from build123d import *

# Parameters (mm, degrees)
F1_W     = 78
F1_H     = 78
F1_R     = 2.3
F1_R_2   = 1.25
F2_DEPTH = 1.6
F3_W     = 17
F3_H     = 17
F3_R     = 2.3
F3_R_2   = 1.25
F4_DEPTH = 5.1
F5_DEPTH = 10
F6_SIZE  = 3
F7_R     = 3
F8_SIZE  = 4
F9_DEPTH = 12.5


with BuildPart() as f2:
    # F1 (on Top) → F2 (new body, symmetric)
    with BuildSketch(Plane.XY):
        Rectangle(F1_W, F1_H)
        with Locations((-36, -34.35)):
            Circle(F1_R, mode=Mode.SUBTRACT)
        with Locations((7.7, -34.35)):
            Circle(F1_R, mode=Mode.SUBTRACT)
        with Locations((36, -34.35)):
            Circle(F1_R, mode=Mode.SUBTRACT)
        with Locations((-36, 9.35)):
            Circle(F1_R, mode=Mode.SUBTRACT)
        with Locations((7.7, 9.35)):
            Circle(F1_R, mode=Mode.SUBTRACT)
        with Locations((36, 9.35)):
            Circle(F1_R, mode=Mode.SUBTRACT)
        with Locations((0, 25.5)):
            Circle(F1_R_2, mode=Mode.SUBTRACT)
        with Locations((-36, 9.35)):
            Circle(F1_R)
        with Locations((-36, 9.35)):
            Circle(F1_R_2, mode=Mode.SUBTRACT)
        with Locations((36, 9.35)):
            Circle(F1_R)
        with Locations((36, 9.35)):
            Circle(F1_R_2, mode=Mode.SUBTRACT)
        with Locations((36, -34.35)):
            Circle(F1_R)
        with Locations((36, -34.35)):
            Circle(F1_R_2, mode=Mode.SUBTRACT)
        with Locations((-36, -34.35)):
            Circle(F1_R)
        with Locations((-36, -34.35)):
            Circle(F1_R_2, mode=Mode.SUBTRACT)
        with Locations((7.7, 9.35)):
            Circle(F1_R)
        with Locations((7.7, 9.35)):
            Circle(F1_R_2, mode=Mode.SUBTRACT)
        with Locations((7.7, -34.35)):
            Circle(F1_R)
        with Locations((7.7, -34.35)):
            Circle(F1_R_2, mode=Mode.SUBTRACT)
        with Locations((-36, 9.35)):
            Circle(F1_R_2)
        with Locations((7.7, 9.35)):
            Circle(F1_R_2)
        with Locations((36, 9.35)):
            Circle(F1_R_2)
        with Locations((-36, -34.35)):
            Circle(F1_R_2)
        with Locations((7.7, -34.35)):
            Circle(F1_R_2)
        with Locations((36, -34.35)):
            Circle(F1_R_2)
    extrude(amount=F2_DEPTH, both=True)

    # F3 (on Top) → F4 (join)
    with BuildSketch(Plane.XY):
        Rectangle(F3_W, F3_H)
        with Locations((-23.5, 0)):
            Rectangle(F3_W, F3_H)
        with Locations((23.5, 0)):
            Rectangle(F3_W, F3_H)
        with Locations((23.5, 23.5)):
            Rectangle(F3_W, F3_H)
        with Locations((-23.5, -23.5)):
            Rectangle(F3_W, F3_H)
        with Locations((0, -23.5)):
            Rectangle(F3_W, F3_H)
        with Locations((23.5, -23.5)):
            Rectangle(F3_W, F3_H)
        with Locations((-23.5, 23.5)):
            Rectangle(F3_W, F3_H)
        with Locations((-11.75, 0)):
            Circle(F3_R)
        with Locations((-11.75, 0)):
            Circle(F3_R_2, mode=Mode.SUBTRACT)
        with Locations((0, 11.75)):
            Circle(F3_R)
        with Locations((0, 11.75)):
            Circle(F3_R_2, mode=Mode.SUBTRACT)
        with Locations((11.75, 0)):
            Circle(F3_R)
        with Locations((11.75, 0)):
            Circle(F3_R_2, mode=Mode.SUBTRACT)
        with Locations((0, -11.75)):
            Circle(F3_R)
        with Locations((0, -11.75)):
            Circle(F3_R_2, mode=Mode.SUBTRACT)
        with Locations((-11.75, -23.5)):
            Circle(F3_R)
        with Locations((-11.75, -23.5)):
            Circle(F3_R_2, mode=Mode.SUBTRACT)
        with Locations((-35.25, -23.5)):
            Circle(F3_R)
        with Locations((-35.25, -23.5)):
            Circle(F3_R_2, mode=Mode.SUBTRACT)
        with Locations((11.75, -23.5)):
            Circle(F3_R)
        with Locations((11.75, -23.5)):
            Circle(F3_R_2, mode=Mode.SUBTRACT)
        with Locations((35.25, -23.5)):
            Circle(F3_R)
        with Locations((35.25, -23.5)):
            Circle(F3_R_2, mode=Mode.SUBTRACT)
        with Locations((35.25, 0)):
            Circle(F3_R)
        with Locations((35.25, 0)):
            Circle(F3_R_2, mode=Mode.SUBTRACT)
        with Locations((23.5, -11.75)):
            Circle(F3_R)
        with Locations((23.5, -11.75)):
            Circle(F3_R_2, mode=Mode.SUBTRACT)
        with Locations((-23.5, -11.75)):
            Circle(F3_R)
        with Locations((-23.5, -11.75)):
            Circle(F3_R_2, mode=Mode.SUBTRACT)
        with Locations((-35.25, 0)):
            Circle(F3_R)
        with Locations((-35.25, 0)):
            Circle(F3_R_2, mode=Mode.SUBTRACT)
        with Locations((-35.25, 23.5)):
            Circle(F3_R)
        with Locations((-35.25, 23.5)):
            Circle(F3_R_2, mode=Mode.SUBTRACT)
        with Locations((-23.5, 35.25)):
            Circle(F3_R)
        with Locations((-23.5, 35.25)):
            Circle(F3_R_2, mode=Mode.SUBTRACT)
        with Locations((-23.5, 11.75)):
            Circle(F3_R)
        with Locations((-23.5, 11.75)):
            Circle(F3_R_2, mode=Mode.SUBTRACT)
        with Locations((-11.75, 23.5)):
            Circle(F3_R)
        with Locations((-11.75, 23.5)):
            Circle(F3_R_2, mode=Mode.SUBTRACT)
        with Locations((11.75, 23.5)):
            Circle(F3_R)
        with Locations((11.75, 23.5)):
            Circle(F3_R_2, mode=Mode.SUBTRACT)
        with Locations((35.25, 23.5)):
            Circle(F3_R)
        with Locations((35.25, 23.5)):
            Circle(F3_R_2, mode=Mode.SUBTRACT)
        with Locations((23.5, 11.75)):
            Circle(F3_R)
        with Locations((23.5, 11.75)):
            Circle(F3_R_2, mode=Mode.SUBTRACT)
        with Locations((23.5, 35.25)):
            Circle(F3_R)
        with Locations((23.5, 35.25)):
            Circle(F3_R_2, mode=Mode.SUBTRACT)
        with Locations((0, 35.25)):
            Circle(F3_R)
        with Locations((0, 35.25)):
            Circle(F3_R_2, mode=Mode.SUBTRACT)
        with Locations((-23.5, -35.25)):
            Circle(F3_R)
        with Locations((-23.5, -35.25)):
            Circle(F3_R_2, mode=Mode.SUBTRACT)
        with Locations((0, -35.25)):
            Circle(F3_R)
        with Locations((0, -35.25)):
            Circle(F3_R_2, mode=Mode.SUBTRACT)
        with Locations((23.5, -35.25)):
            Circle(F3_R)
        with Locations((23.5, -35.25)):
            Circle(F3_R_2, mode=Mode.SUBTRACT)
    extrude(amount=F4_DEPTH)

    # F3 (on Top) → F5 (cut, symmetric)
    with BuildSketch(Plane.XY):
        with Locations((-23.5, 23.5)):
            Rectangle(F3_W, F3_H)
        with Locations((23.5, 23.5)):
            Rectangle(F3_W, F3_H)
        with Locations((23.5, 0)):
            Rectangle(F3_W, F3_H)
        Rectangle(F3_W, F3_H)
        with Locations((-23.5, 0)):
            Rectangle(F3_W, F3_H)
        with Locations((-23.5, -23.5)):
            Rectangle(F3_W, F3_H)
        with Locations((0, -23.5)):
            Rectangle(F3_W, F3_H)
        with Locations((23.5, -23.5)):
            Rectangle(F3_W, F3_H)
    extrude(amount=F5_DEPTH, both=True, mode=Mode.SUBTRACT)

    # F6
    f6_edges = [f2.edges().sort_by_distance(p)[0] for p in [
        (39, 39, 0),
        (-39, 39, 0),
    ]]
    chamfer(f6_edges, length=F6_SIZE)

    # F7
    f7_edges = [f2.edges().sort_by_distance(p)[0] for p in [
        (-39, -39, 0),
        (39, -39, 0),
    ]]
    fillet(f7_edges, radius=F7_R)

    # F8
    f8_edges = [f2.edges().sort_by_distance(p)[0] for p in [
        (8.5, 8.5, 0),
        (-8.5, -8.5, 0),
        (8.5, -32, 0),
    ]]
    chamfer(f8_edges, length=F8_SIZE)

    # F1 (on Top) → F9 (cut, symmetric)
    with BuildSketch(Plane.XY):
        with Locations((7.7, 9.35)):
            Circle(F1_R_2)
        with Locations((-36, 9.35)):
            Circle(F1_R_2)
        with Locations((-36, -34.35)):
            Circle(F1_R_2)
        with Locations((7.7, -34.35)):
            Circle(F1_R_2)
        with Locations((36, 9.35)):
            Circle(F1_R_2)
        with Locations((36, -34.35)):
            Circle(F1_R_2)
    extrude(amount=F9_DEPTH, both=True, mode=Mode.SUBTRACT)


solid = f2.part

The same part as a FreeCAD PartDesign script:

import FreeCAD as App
import Part
import Sketcher
from FreeCAD import Vector
Q = App.Units.Quantity


def edges_at(feature, points):
    """Names of the edges that pass closest to the given points."""
    edges = feature.Shape.Edges
    near = lambda p: min(range(len(edges)), key=lambda i: edges[i].distToShape(Part.Vertex(*p))[0])
    return sorted({f"Edge{near(p) + 1}" for p in points})


def add_polygon(sketch, points):
    """Adds a closed chain of lines whose ends are joined by coincident constraints."""
    first, n = sketch.GeometryCount, len(points)
    for a, b in zip(points, points[1:] + points[:1]):
        sketch.addGeometry(Part.LineSegment(App.Vector(*a, 0), App.Vector(*b, 0)), False)
    for i in range(n):
        sketch.addConstraint(Sketcher.Constraint("Coincident", first + i, 2, first + (i + 1) % n, 1))

doc = App.newDocument("Part")
body = doc.addObject("PartDesign::Body", "Body")

sketch1 = body.newObject("Sketcher::SketchObject", "Sketch")
sketch1.AttachmentSupport = (doc.getObject("XY_Plane"), [""])
sketch1.MapMode = "FlatFace"
add_polygon(sketch1, [(-39, 39), (-39, -39), (39, -39), (39, 39)])
sketch1.addGeometry(Part.Circle(Vector(0, 25.5, 0), Vector(0, 0, 1), 1.2), False)
sketch1.addConstraint([
    Sketcher.Constraint("Vertical", 0),
    Sketcher.Constraint("Horizontal", 1),
    Sketcher.Constraint("Vertical", 2),
    Sketcher.Constraint("Horizontal", 3),
    Sketcher.Constraint("Symmetric", 0, 2, 2, 2, -1, 1),
    Sketcher.Constraint("PointOnObject", 4, 3, -2),
    Sketcher.Constraint("Equal", 3, 0),
    Sketcher.Constraint("Diameter", 4, Q("2.5 mm")),
    Sketcher.Constraint("DistanceX", 1, 1, 1, 2, Q("78 mm")),
    Sketcher.Constraint("DistanceY", -1, 1, 4, 3, Q("25.5 mm")),
])
pad1 = body.newObject("PartDesign::Pad", "Pad")
pad1.Profile = sketch1
pad1.Length = 3.2
pad1.Midplane = True

sketch2 = body.newObject("Sketcher::SketchObject", "Sketch001")
sketch2.AttachmentSupport = (doc.getObject("XY_Plane"), [""])
sketch2.MapMode = "FlatFace"
add_polygon(sketch2, [(-8.5, 8.5), (-8.5, -8.5), (8.5, -8.5), (8.5, 8.5)])
add_polygon(sketch2, [(-32, 8.5), (-32, -8.5), (-15, -8.5), (-15, 8.5)])
add_polygon(sketch2, [(15, 8.5), (15, -8.5), (32, -8.5), (32, 8.5)])
add_polygon(sketch2, [(15, 32), (15, 15), (32, 15), (32, 32)])
add_polygon(sketch2, [(-32, -15), (-32, -32), (-15, -32), (-15, -15)])
add_polygon(sketch2, [(-8.5, -15), (-8.5, -32), (8.5, -32), (8.5, -15)])
add_polygon(sketch2, [(15, -15), (15, -32), (32, -32), (32, -15)])
add_polygon(sketch2, [(-32, 32), (-32, 15), (-15, 15), (-15, 32)])
sketch2.addGeometry(Part.Circle(Vector(-11.8, 0, 0), Vector(0, 0, 1), 2.3), False)
sketch2.addGeometry(Part.Circle(Vector(-11.8, 0, 0), Vector(0, 0, 1), 1.2), False)
sketch2.addGeometry(Part.Circle(Vector(0, 11.8, 0), Vector(0, 0, 1), 2.3), False)
sketch2.addGeometry(Part.Circle(Vector(0, 11.8, 0), Vector(0, 0, 1), 1.2), False)
sketch2.addGeometry(Part.Circle(Vector(11.8, 0, 0), Vector(0, 0, 1), 2.3), False)
sketch2.addGeometry(Part.Circle(Vector(11.8, 0, 0), Vector(0, 0, 1), 1.2), False)
sketch2.addGeometry(Part.Circle(Vector(0, -11.8, 0), Vector(0, 0, 1), 2.3), False)
sketch2.addGeometry(Part.Circle(Vector(0, -11.8, 0), Vector(0, 0, 1), 1.2), False)
sketch2.addGeometry(Part.Circle(Vector(-11.8, -23.5, 0), Vector(0, 0, 1), 2.3), False)
sketch2.addGeometry(Part.Circle(Vector(-11.8, -23.5, 0), Vector(0, 0, 1), 1.2), False)
sketch2.addGeometry(Part.Circle(Vector(-35.2, -23.5, 0), Vector(0, 0, 1), 2.3), False)
sketch2.addGeometry(Part.Circle(Vector(-35.2, -23.5, 0), Vector(0, 0, 1), 1.2), False)
sketch2.addGeometry(Part.Circle(Vector(11.8, -23.5, 0), Vector(0, 0, 1), 2.3), False)
sketch2.addGeometry(Part.Circle(Vector(11.8, -23.5, 0), Vector(0, 0, 1), 1.2), False)
sketch2.addGeometry(Part.Circle(Vector(35.2, -23.5, 0), Vector(0, 0, 1), 2.3), False)
sketch2.addGeometry(Part.Circle(Vector(35.2, -23.5, 0), Vector(0, 0, 1), 1.2), False)
sketch2.addGeometry(Part.Circle(Vector(35.2, 0, 0), Vector(0, 0, 1), 2.3), False)
sketch2.addGeometry(Part.Circle(Vector(35.2, 0, 0), Vector(0, 0, 1), 1.2), False)
sketch2.addGeometry(Part.Circle(Vector(23.5, -11.8, 0), Vector(0, 0, 1), 2.3), False)
sketch2.addGeometry(Part.Circle(Vector(23.5, -11.8, 0), Vector(0, 0, 1), 1.2), False)
sketch2.addGeometry(Part.Circle(Vector(-23.5, -11.8, 0), Vector(0, 0, 1), 2.3), False)
sketch2.addGeometry(Part.Circle(Vector(-23.5, -11.8, 0), Vector(0, 0, 1), 1.2), False)
sketch2.addGeometry(Part.Circle(Vector(-35.2, 0, 0), Vector(0, 0, 1), 2.3), False)
sketch2.addGeometry(Part.Circle(Vector(-35.2, 0, 0), Vector(0, 0, 1), 1.2), False)
sketch2.addGeometry(Part.Circle(Vector(-35.2, 23.5, 0), Vector(0, 0, 1), 2.3), False)
sketch2.addGeometry(Part.Circle(Vector(-35.2, 23.5, 0), Vector(0, 0, 1), 1.2), False)
sketch2.addGeometry(Part.Circle(Vector(-23.5, 35.2, 0), Vector(0, 0, 1), 2.3), False)
sketch2.addGeometry(Part.Circle(Vector(-23.5, 35.2, 0), Vector(0, 0, 1), 1.2), False)
sketch2.addGeometry(Part.Circle(Vector(-23.5, 11.8, 0), Vector(0, 0, 1), 2.3), False)
sketch2.addGeometry(Part.Circle(Vector(-23.5, 11.8, 0), Vector(0, 0, 1), 1.2), False)
sketch2.addGeometry(Part.Circle(Vector(-11.8, 23.5, 0), Vector(0, 0, 1), 2.3), False)
sketch2.addGeometry(Part.Circle(Vector(-11.8, 23.5, 0), Vector(0, 0, 1), 1.2), False)
sketch2.addGeometry(Part.Circle(Vector(11.8, 23.5, 0), Vector(0, 0, 1), 2.3), False)
sketch2.addGeometry(Part.Circle(Vector(11.8, 23.5, 0), Vector(0, 0, 1), 1.2), False)
sketch2.addGeometry(Part.Circle(Vector(35.2, 23.5, 0), Vector(0, 0, 1), 2.3), False)
sketch2.addGeometry(Part.Circle(Vector(35.2, 23.5, 0), Vector(0, 0, 1), 1.2), False)
sketch2.addGeometry(Part.Circle(Vector(23.5, 11.8, 0), Vector(0, 0, 1), 2.3), False)
sketch2.addGeometry(Part.Circle(Vector(23.5, 11.8, 0), Vector(0, 0, 1), 1.2), False)
sketch2.addGeometry(Part.Circle(Vector(23.5, 35.2, 0), Vector(0, 0, 1), 2.3), False)
sketch2.addGeometry(Part.Circle(Vector(23.5, 35.2, 0), Vector(0, 0, 1), 1.2), False)
sketch2.addGeometry(Part.Circle(Vector(0, 35.2, 0), Vector(0, 0, 1), 2.3), False)
sketch2.addGeometry(Part.Circle(Vector(0, 35.2, 0), Vector(0, 0, 1), 1.2), False)
sketch2.addGeometry(Part.Circle(Vector(-23.5, -35.2, 0), Vector(0, 0, 1), 2.3), False)
sketch2.addGeometry(Part.Circle(Vector(-23.5, -35.2, 0), Vector(0, 0, 1), 1.2), False)
sketch2.addGeometry(Part.Circle(Vector(0, -35.2, 0), Vector(0, 0, 1), 2.3), False)
sketch2.addGeometry(Part.Circle(Vector(0, -35.2, 0), Vector(0, 0, 1), 1.2), False)
sketch2.addGeometry(Part.Circle(Vector(23.5, -35.2, 0), Vector(0, 0, 1), 2.3), False)
sketch2.addGeometry(Part.Circle(Vector(23.5, -35.2, 0), Vector(0, 0, 1), 1.2), False)
sketch2.addConstraint([
    Sketcher.Constraint("Vertical", 0),
    Sketcher.Constraint("Horizontal", 1),
    Sketcher.Constraint("Vertical", 2),
    Sketcher.Constraint("Horizontal", 3),
    Sketcher.Constraint("Vertical", 4),
    Sketcher.Constraint("Horizontal", 5),
    Sketcher.Constraint("Vertical", 6),
    Sketcher.Constraint("Horizontal", 7),
    Sketcher.Constraint("Vertical", 8),
    Sketcher.Constraint("Horizontal", 9),
    Sketcher.Constraint("Vertical", 10),
    Sketcher.Constraint("Horizontal", 11),
    Sketcher.Constraint("Vertical", 12),
    Sketcher.Constraint("Horizontal", 13),
    Sketcher.Constraint("Vertical", 14),
    Sketcher.Constraint("Horizontal", 15),
    Sketcher.Constraint("Vertical", 16),
    Sketcher.Constraint("Horizontal", 17),
    Sketcher.Constraint("Vertical", 18),
    Sketcher.Constraint("Horizontal", 19),
    Sketcher.Constraint("Vertical", 20),
    Sketcher.Constraint("Horizontal", 21),
    Sketcher.Constraint("Vertical", 22),
    Sketcher.Constraint("Horizontal", 23),
    Sketcher.Constraint("Vertical", 24),
    Sketcher.Constraint("Horizontal", 25),
    Sketcher.Constraint("Vertical", 26),
    Sketcher.Constraint("Horizontal", 27),
    Sketcher.Constraint("Vertical", 28),
    Sketcher.Constraint("Horizontal", 29),
    Sketcher.Constraint("Vertical", 30),
    Sketcher.Constraint("Horizontal", 31),
    Sketcher.Constraint("Coincident", 33, 3, 32, 3),
    Sketcher.Constraint("Coincident", 35, 3, 34, 3),
    Sketcher.Constraint("Coincident", 37, 3, 36, 3),
    Sketcher.Constraint("Coincident", 39, 3, 38, 3),
    Sketcher.Constraint("Coincident", 41, 3, 40, 3),
    Sketcher.Constraint("Coincident", 43, 3, 42, 3),
    Sketcher.Constraint("Coincident", 45, 3, 44, 3),
    Sketcher.Constraint("Coincident", 47, 3, 46, 3),
    Sketcher.Constraint("Coincident", 49, 3, 48, 3),
    Sketcher.Constraint("Coincident", 51, 3, 50, 3),
    Sketcher.Constraint("Coincident", 53, 3, 52, 3),
    Sketcher.Constraint("Coincident", 55, 3, 54, 3),
    Sketcher.Constraint("Coincident", 57, 3, 56, 3),
    Sketcher.Constraint("Coincident", 59, 3, 58, 3),
    Sketcher.Constraint("Coincident", 61, 3, 60, 3),
    Sketcher.Constraint("Coincident", 63, 3, 62, 3),
    Sketcher.Constraint("Coincident", 65, 3, 64, 3),
    Sketcher.Constraint("Coincident", 67, 3, 66, 3),
    Sketcher.Constraint("Coincident", 69, 3, 68, 3),
    Sketcher.Constraint("Coincident", 71, 3, 70, 3),
    Sketcher.Constraint("Coincident", 73, 3, 72, 3),
    Sketcher.Constraint("Coincident", 75, 3, 74, 3),
    Sketcher.Constraint("Coincident", 77, 3, 76, 3),
    Sketcher.Constraint("Coincident", 79, 3, 78, 3),
    Sketcher.Constraint("Equal", 32, 34),
    Sketcher.Constraint("Equal", 33, 35),
    Sketcher.Constraint("Equal", 34, 36),
    Sketcher.Constraint("Equal", 35, 37),
    Sketcher.Constraint("Equal", 36, 38),
    Sketcher.Constraint("Equal", 37, 39),
    Sketcher.Constraint("Equal", 38, 40),
    Sketcher.Constraint("Equal", 39, 41),
    Sketcher.Constraint("Equal", 40, 42),
    Sketcher.Constraint("Equal", 41, 43),
    Sketcher.Constraint("Equal", 42, 44),
    Sketcher.Constraint("Equal", 43, 45),
    Sketcher.Constraint("Equal", 44, 46),
    Sketcher.Constraint("Equal", 45, 47),
    Sketcher.Constraint("Equal", 46, 48),
    Sketcher.Constraint("Equal", 47, 49),
    Sketcher.Constraint("Equal", 48, 50),
    Sketcher.Constraint("Equal", 49, 51),
    Sketcher.Constraint("Equal", 50, 52),
    Sketcher.Constraint("Equal", 51, 53),
    Sketcher.Constraint("Equal", 52, 54),
    Sketcher.Constraint("Equal", 53, 55),
    Sketcher.Constraint("Equal", 54, 56),
    Sketcher.Constraint("Equal", 55, 57),
    Sketcher.Constraint("Equal", 56, 58),
    Sketcher.Constraint("Equal", 57, 59),
    Sketcher.Constraint("Equal", 58, 60),
    Sketcher.Constraint("Equal", 59, 61),
    Sketcher.Constraint("Equal", 60, 62),
    Sketcher.Constraint("Equal", 61, 63),
    Sketcher.Constraint("Equal", 62, 64),
    Sketcher.Constraint("Equal", 63, 65),
    Sketcher.Constraint("Equal", 64, 66),
    Sketcher.Constraint("Equal", 65, 67),
    Sketcher.Constraint("Equal", 66, 68),
    Sketcher.Constraint("Equal", 67, 69),
    Sketcher.Constraint("Equal", 68, 70),
    Sketcher.Constraint("Equal", 69, 71),
    Sketcher.Constraint("Equal", 70, 72),
    Sketcher.Constraint("Equal", 71, 73),
    Sketcher.Constraint("Equal", 72, 74),
    Sketcher.Constraint("Equal", 73, 75),
    Sketcher.Constraint("Equal", 74, 76),
    Sketcher.Constraint("Equal", 75, 77),
    Sketcher.Constraint("Equal", 76, 78),
    Sketcher.Constraint("Equal", 77, 79),
    Sketcher.Constraint("Symmetric", 32, 3, 36, 3, -1, 1),
    Sketcher.Constraint("Symmetric", 34, 3, 38, 3, -1, 1),
    Sketcher.Constraint("Symmetric", 48, 3, 54, 3, -1, 1),
    Sketcher.Constraint("Symmetric", 46, 3, 56, 3, -1, 1),
    Sketcher.Constraint("Symmetric", 50, 3, 60, 3, -1, 1),
    Sketcher.Constraint("Symmetric", 44, 3, 62, 3, -1, 1),
    Sketcher.Constraint("Symmetric", 40, 3, 64, 3, -1, 1),
    Sketcher.Constraint("Symmetric", 42, 3, 66, 3, -1, 1),
    Sketcher.Constraint("Symmetric", 52, 3, 68, 3, -1, 1),
    Sketcher.Constraint("Symmetric", 70, 3, 74, 3, -1, 1),
    Sketcher.Constraint("Symmetric", 72, 3, 76, 3, -1, 1),
    Sketcher.Constraint("Symmetric", 58, 3, 78, 3, -1, 1),
    Sketcher.Constraint("Symmetric", 0, 2, 2, 2, -1, 1),
    Sketcher.Constraint("Symmetric", 6, 2, 8, 2, -1, 1),
    Sketcher.Constraint("Symmetric", 4, 2, 10, 2, -1, 1),
    Sketcher.Constraint("Symmetric", 14, 2, 16, 2, -1, 1),
    Sketcher.Constraint("Symmetric", 12, 2, 18, 2, -1, 1),
    Sketcher.Constraint("Symmetric", 26, 2, 28, 2, -1, 1),
    Sketcher.Constraint("Symmetric", 24, 2, 30, 2, -1, 1),
    Sketcher.Constraint("Symmetric", 40, 3, 44, 3, -2),
    Sketcher.Constraint("Symmetric", 42, 3, 46, 3, -2),
    Sketcher.Constraint("Symmetric", 50, 3, 52, 3, -2),
    Sketcher.Constraint("Symmetric", 58, 3, 70, 3, -2),
    Sketcher.Constraint("Symmetric", 17, 2, 24, 2, -2),
    Sketcher.Constraint("Symmetric", 19, 2, 26, 2, -2),
    Sketcher.Constraint("PointOnObject", 32, 3, -1),
    Sketcher.Constraint("PointOnObject", 34, 3, -2),
    Sketcher.Constraint("PointOnObject", 48, 3, -1),
    Sketcher.Constraint("PointOnObject", 72, 3, -2),
    Sketcher.Constraint("Horizontal", 41, 3, 42, 3),
    Sketcher.Constraint("Horizontal", 39, 3, 50, 3),
    Sketcher.Constraint("Horizontal", 71, 3, 72, 3),
    Sketcher.Constraint("Horizontal", 1, 2, 4, 2),
    Sketcher.Constraint("Horizontal", 3, 2, 6, 2),
    Sketcher.Constraint("Horizontal", 17, 2, 20, 2),
    Sketcher.Constraint("Horizontal", 19, 2, 22, 2),
    Sketcher.Constraint("Vertical", 33, 3, 40, 3),
    Sketcher.Constraint("Vertical", 47, 3, 48, 3),
    Sketcher.Constraint("Vertical", 53, 3, 58, 3),
    Sketcher.Constraint("Vertical", 11, 2, 12, 2),
    Sketcher.Constraint("Vertical", 10, 2, 13, 2),
    Sketcher.Constraint("Vertical", 3, 2, 20, 2),
    Sketcher.Constraint("Vertical", 2, 2, 21, 2),
    Sketcher.Constraint("Equal", 3, 5),
    Sketcher.Constraint("Equal", 31, 0),
    Sketcher.Constraint("Equal", 10, 12),
    Sketcher.Constraint("Diameter", 32, Q("4.6 mm")),
    Sketcher.Constraint("Diameter", 33, Q("2.5 mm")),
    Sketcher.Constraint("DistanceX", 1, 1, 1, 2, Q("17 mm")),
    Sketcher.Constraint("DistanceX", 4, 2, -1, 1, Q("32 mm")),
    Sketcher.Constraint("DistanceY", -1, 1, 12, 2, Q("15 mm")),
    Sketcher.Constraint("DistanceY", 40, 3, -1, 1, Q("23.5 mm")),
    Sketcher.Constraint("DistanceX", -1, 1, 50, 3, Q("23.5 mm")),
    Sketcher.Constraint("DistanceX", 32, 3, -1, 1, Q("11.75 mm")),
    Sketcher.Constraint("DistanceY", -1, 1, 34, 3, Q("11.75 mm")),
    Sketcher.Constraint("DistanceX", 42, 3, -1, 1, Q("35.25 mm")),
    Sketcher.Constraint("DistanceY", -1, 1, 58, 3, Q("35.25 mm")),
])
pad2 = body.newObject("PartDesign::Pad", "Pad001")
pad2.Profile = sketch2
pad2.Length = 5.1

sketch3 = body.newObject("Sketcher::SketchObject", "Sketch002")
sketch3.AttachmentSupport = (doc.getObject("XY_Plane"), [""])
sketch3.MapMode = "FlatFace"
add_polygon(sketch3, [(-32, 32), (-32, 15), (-15, 15), (-15, 32)])
add_polygon(sketch3, [(15, 32), (15, 15), (32, 15), (32, 32)])
add_polygon(sketch3, [(15, 8), (15, -8), (32, -8), (32, 8)])
add_polygon(sketch3, [(-8, 8), (-8, -8), (8, -8), (8, 8)])
add_polygon(sketch3, [(-32, 8), (-32, -8), (-15, -8), (-15, 8)])
add_polygon(sketch3, [(-32, -15), (-32, -32), (-15, -32), (-15, -15)])
add_polygon(sketch3, [(-8, -15), (-8, -32), (8, -32), (8, -15)])
add_polygon(sketch3, [(15, -15), (15, -32), (32, -32), (32, -15)])
sketch3.addConstraint([
    Sketcher.Constraint("Vertical", 0),
    Sketcher.Constraint("Horizontal", 1),
    Sketcher.Constraint("Vertical", 2),
    Sketcher.Constraint("Horizontal", 3),
    Sketcher.Constraint("Vertical", 4),
    Sketcher.Constraint("Horizontal", 5),
    Sketcher.Constraint("Vertical", 6),
    Sketcher.Constraint("Horizontal", 7),
    Sketcher.Constraint("Vertical", 8),
    Sketcher.Constraint("Horizontal", 9),
    Sketcher.Constraint("Vertical", 10),
    Sketcher.Constraint("Horizontal", 11),
    Sketcher.Constraint("Vertical", 12),
    Sketcher.Constraint("Horizontal", 13),
    Sketcher.Constraint("Vertical", 14),
    Sketcher.Constraint("Horizontal", 15),
    Sketcher.Constraint("Vertical", 16),
    Sketcher.Constraint("Horizontal", 17),
    Sketcher.Constraint("Vertical", 18),
    Sketcher.Constraint("Horizontal", 19),
    Sketcher.Constraint("Vertical", 20),
    Sketcher.Constraint("Horizontal", 21),
    Sketcher.Constraint("Vertical", 22),
    Sketcher.Constraint("Horizontal", 23),
    Sketcher.Constraint("Vertical", 24),
    Sketcher.Constraint("Horizontal", 25),
    Sketcher.Constraint("Vertical", 26),
    Sketcher.Constraint("Horizontal", 27),
    Sketcher.Constraint("Vertical", 28),
    Sketcher.Constraint("Horizontal", 29),
    Sketcher.Constraint("Vertical", 30),
    Sketcher.Constraint("Horizontal", 31),
    Sketcher.Constraint("Symmetric", 12, 2, 14, 2, -1, 1),
    Sketcher.Constraint("Symmetric", 10, 2, 16, 2, -1, 1),
    Sketcher.Constraint("Symmetric", 8, 2, 18, 2, -1, 1),
    Sketcher.Constraint("Symmetric", 6, 2, 20, 2, -1, 1),
    Sketcher.Constraint("Symmetric", 4, 2, 22, 2, -1, 1),
    Sketcher.Constraint("Symmetric", 2, 2, 28, 2, -1, 1),
    Sketcher.Constraint("Symmetric", 0, 2, 30, 2, -1, 1),
    Sketcher.Constraint("Symmetric", 1, 2, 4, 2, -2),
    Sketcher.Constraint("Symmetric", 3, 2, 6, 2, -2),
    Sketcher.Constraint("Horizontal", 9, 2, 12, 2),
    Sketcher.Constraint("Horizontal", 11, 2, 14, 2),
    Sketcher.Constraint("Horizontal", 21, 2, 24, 2),
    Sketcher.Constraint("Horizontal", 23, 2, 26, 2),
    Sketcher.Constraint("Vertical", 7, 2, 8, 2),
    Sketcher.Constraint("Vertical", 6, 2, 9, 2),
    Sketcher.Constraint("Vertical", 15, 2, 24, 2),
    Sketcher.Constraint("Vertical", 14, 2, 25, 2),
    Sketcher.Constraint("Equal", 11, 13),
    Sketcher.Constraint("Equal", 31, 0),
    Sketcher.Constraint("Equal", 6, 8),
    Sketcher.Constraint("DistanceX", 1, 1, 1, 2, Q("17 mm")),
    Sketcher.Constraint("DistanceX", 0, 2, -1, 1, Q("32 mm")),
    Sketcher.Constraint("DistanceY", -1, 1, 0, 2, Q("15 mm")),
])
pocket1 = body.newObject("PartDesign::Pocket", "Pocket")
pocket1.Profile = sketch3
pocket1.Length = 20
pocket1.Midplane = True
doc.recompute()

chamfer = body.newObject("PartDesign::Chamfer", "Chamfer")
chamfer.Base = (pocket1, edges_at(pocket1, [(39, 39, 0), (-39, 39, 0)]))
chamfer.Size = 3
doc.recompute()

fillet = body.newObject("PartDesign::Fillet", "Fillet")
fillet.Base = (chamfer, edges_at(chamfer, [(-39, -39, 0), (39, -39, 0)]))
fillet.Radius = 3
doc.recompute()

chamfer2 = body.newObject("PartDesign::Chamfer", "Chamfer001")
chamfer2.Base = (fillet, edges_at(fillet, [(8.5, 8.5, 0), (-8.5, -8.5, 0), (8.5, -32, 0)]))
chamfer2.Size = 4

sketch4 = body.newObject("Sketcher::SketchObject", "Sketch003")
sketch4.AttachmentSupport = (doc.getObject("XY_Plane"), [""])
sketch4.MapMode = "FlatFace"
sketch4.addGeometry([
    Part.Circle(Vector(7.7, 9.3, 0), Vector(0, 0, 1), 1.2),
    Part.Circle(Vector(-36, 9.3, 0), Vector(0, 0, 1), 1.2),
    Part.Circle(Vector(-36, -34.4, 0), Vector(0, 0, 1), 1.2),
    Part.Circle(Vector(7.7, -34.4, 0), Vector(0, 0, 1), 1.2),
    Part.Circle(Vector(36, 9.3, 0), Vector(0, 0, 1), 1.2),
    Part.Circle(Vector(36, -34.4, 0), Vector(0, 0, 1), 1.2),
], False)
sketch4.addConstraint([
    Sketcher.Constraint("Equal", 0, 1),
    Sketcher.Constraint("Equal", 1, 2),
    Sketcher.Constraint("Equal", 2, 3),
    Sketcher.Constraint("Equal", 3, 4),
    Sketcher.Constraint("Equal", 4, 5),
    Sketcher.Constraint("Symmetric", 1, 3, 4, 3, -2),
    Sketcher.Constraint("Symmetric", 2, 3, 5, 3, -2),
    Sketcher.Constraint("Horizontal", 0, 3, 1, 3),
    Sketcher.Constraint("Horizontal", 2, 3, 3, 3),
    Sketcher.Constraint("Vertical", 1, 3, 2, 3),
    Sketcher.Constraint("Vertical", 0, 3, 3, 3),
    Sketcher.Constraint("Diameter", 0, Q("2.5 mm")),
    Sketcher.Constraint("DistanceX", 1, 3, -1, 1, Q("36 mm")),
    Sketcher.Constraint("DistanceX", -1, 1, 0, 3, Q("7.7 mm")),
    Sketcher.Constraint("DistanceY", 2, 3, 1, 3, Q("43.7 mm")),
    Sketcher.Constraint("DistanceY", -1, 1, 0, 3, Q("9.35 mm")),
])
pocket2 = body.newObject("PartDesign::Pocket", "Pocket001")
pocket2.Profile = sketch4
pocket2.Length = 25
pocket2.Midplane = True

doc.recompute()
